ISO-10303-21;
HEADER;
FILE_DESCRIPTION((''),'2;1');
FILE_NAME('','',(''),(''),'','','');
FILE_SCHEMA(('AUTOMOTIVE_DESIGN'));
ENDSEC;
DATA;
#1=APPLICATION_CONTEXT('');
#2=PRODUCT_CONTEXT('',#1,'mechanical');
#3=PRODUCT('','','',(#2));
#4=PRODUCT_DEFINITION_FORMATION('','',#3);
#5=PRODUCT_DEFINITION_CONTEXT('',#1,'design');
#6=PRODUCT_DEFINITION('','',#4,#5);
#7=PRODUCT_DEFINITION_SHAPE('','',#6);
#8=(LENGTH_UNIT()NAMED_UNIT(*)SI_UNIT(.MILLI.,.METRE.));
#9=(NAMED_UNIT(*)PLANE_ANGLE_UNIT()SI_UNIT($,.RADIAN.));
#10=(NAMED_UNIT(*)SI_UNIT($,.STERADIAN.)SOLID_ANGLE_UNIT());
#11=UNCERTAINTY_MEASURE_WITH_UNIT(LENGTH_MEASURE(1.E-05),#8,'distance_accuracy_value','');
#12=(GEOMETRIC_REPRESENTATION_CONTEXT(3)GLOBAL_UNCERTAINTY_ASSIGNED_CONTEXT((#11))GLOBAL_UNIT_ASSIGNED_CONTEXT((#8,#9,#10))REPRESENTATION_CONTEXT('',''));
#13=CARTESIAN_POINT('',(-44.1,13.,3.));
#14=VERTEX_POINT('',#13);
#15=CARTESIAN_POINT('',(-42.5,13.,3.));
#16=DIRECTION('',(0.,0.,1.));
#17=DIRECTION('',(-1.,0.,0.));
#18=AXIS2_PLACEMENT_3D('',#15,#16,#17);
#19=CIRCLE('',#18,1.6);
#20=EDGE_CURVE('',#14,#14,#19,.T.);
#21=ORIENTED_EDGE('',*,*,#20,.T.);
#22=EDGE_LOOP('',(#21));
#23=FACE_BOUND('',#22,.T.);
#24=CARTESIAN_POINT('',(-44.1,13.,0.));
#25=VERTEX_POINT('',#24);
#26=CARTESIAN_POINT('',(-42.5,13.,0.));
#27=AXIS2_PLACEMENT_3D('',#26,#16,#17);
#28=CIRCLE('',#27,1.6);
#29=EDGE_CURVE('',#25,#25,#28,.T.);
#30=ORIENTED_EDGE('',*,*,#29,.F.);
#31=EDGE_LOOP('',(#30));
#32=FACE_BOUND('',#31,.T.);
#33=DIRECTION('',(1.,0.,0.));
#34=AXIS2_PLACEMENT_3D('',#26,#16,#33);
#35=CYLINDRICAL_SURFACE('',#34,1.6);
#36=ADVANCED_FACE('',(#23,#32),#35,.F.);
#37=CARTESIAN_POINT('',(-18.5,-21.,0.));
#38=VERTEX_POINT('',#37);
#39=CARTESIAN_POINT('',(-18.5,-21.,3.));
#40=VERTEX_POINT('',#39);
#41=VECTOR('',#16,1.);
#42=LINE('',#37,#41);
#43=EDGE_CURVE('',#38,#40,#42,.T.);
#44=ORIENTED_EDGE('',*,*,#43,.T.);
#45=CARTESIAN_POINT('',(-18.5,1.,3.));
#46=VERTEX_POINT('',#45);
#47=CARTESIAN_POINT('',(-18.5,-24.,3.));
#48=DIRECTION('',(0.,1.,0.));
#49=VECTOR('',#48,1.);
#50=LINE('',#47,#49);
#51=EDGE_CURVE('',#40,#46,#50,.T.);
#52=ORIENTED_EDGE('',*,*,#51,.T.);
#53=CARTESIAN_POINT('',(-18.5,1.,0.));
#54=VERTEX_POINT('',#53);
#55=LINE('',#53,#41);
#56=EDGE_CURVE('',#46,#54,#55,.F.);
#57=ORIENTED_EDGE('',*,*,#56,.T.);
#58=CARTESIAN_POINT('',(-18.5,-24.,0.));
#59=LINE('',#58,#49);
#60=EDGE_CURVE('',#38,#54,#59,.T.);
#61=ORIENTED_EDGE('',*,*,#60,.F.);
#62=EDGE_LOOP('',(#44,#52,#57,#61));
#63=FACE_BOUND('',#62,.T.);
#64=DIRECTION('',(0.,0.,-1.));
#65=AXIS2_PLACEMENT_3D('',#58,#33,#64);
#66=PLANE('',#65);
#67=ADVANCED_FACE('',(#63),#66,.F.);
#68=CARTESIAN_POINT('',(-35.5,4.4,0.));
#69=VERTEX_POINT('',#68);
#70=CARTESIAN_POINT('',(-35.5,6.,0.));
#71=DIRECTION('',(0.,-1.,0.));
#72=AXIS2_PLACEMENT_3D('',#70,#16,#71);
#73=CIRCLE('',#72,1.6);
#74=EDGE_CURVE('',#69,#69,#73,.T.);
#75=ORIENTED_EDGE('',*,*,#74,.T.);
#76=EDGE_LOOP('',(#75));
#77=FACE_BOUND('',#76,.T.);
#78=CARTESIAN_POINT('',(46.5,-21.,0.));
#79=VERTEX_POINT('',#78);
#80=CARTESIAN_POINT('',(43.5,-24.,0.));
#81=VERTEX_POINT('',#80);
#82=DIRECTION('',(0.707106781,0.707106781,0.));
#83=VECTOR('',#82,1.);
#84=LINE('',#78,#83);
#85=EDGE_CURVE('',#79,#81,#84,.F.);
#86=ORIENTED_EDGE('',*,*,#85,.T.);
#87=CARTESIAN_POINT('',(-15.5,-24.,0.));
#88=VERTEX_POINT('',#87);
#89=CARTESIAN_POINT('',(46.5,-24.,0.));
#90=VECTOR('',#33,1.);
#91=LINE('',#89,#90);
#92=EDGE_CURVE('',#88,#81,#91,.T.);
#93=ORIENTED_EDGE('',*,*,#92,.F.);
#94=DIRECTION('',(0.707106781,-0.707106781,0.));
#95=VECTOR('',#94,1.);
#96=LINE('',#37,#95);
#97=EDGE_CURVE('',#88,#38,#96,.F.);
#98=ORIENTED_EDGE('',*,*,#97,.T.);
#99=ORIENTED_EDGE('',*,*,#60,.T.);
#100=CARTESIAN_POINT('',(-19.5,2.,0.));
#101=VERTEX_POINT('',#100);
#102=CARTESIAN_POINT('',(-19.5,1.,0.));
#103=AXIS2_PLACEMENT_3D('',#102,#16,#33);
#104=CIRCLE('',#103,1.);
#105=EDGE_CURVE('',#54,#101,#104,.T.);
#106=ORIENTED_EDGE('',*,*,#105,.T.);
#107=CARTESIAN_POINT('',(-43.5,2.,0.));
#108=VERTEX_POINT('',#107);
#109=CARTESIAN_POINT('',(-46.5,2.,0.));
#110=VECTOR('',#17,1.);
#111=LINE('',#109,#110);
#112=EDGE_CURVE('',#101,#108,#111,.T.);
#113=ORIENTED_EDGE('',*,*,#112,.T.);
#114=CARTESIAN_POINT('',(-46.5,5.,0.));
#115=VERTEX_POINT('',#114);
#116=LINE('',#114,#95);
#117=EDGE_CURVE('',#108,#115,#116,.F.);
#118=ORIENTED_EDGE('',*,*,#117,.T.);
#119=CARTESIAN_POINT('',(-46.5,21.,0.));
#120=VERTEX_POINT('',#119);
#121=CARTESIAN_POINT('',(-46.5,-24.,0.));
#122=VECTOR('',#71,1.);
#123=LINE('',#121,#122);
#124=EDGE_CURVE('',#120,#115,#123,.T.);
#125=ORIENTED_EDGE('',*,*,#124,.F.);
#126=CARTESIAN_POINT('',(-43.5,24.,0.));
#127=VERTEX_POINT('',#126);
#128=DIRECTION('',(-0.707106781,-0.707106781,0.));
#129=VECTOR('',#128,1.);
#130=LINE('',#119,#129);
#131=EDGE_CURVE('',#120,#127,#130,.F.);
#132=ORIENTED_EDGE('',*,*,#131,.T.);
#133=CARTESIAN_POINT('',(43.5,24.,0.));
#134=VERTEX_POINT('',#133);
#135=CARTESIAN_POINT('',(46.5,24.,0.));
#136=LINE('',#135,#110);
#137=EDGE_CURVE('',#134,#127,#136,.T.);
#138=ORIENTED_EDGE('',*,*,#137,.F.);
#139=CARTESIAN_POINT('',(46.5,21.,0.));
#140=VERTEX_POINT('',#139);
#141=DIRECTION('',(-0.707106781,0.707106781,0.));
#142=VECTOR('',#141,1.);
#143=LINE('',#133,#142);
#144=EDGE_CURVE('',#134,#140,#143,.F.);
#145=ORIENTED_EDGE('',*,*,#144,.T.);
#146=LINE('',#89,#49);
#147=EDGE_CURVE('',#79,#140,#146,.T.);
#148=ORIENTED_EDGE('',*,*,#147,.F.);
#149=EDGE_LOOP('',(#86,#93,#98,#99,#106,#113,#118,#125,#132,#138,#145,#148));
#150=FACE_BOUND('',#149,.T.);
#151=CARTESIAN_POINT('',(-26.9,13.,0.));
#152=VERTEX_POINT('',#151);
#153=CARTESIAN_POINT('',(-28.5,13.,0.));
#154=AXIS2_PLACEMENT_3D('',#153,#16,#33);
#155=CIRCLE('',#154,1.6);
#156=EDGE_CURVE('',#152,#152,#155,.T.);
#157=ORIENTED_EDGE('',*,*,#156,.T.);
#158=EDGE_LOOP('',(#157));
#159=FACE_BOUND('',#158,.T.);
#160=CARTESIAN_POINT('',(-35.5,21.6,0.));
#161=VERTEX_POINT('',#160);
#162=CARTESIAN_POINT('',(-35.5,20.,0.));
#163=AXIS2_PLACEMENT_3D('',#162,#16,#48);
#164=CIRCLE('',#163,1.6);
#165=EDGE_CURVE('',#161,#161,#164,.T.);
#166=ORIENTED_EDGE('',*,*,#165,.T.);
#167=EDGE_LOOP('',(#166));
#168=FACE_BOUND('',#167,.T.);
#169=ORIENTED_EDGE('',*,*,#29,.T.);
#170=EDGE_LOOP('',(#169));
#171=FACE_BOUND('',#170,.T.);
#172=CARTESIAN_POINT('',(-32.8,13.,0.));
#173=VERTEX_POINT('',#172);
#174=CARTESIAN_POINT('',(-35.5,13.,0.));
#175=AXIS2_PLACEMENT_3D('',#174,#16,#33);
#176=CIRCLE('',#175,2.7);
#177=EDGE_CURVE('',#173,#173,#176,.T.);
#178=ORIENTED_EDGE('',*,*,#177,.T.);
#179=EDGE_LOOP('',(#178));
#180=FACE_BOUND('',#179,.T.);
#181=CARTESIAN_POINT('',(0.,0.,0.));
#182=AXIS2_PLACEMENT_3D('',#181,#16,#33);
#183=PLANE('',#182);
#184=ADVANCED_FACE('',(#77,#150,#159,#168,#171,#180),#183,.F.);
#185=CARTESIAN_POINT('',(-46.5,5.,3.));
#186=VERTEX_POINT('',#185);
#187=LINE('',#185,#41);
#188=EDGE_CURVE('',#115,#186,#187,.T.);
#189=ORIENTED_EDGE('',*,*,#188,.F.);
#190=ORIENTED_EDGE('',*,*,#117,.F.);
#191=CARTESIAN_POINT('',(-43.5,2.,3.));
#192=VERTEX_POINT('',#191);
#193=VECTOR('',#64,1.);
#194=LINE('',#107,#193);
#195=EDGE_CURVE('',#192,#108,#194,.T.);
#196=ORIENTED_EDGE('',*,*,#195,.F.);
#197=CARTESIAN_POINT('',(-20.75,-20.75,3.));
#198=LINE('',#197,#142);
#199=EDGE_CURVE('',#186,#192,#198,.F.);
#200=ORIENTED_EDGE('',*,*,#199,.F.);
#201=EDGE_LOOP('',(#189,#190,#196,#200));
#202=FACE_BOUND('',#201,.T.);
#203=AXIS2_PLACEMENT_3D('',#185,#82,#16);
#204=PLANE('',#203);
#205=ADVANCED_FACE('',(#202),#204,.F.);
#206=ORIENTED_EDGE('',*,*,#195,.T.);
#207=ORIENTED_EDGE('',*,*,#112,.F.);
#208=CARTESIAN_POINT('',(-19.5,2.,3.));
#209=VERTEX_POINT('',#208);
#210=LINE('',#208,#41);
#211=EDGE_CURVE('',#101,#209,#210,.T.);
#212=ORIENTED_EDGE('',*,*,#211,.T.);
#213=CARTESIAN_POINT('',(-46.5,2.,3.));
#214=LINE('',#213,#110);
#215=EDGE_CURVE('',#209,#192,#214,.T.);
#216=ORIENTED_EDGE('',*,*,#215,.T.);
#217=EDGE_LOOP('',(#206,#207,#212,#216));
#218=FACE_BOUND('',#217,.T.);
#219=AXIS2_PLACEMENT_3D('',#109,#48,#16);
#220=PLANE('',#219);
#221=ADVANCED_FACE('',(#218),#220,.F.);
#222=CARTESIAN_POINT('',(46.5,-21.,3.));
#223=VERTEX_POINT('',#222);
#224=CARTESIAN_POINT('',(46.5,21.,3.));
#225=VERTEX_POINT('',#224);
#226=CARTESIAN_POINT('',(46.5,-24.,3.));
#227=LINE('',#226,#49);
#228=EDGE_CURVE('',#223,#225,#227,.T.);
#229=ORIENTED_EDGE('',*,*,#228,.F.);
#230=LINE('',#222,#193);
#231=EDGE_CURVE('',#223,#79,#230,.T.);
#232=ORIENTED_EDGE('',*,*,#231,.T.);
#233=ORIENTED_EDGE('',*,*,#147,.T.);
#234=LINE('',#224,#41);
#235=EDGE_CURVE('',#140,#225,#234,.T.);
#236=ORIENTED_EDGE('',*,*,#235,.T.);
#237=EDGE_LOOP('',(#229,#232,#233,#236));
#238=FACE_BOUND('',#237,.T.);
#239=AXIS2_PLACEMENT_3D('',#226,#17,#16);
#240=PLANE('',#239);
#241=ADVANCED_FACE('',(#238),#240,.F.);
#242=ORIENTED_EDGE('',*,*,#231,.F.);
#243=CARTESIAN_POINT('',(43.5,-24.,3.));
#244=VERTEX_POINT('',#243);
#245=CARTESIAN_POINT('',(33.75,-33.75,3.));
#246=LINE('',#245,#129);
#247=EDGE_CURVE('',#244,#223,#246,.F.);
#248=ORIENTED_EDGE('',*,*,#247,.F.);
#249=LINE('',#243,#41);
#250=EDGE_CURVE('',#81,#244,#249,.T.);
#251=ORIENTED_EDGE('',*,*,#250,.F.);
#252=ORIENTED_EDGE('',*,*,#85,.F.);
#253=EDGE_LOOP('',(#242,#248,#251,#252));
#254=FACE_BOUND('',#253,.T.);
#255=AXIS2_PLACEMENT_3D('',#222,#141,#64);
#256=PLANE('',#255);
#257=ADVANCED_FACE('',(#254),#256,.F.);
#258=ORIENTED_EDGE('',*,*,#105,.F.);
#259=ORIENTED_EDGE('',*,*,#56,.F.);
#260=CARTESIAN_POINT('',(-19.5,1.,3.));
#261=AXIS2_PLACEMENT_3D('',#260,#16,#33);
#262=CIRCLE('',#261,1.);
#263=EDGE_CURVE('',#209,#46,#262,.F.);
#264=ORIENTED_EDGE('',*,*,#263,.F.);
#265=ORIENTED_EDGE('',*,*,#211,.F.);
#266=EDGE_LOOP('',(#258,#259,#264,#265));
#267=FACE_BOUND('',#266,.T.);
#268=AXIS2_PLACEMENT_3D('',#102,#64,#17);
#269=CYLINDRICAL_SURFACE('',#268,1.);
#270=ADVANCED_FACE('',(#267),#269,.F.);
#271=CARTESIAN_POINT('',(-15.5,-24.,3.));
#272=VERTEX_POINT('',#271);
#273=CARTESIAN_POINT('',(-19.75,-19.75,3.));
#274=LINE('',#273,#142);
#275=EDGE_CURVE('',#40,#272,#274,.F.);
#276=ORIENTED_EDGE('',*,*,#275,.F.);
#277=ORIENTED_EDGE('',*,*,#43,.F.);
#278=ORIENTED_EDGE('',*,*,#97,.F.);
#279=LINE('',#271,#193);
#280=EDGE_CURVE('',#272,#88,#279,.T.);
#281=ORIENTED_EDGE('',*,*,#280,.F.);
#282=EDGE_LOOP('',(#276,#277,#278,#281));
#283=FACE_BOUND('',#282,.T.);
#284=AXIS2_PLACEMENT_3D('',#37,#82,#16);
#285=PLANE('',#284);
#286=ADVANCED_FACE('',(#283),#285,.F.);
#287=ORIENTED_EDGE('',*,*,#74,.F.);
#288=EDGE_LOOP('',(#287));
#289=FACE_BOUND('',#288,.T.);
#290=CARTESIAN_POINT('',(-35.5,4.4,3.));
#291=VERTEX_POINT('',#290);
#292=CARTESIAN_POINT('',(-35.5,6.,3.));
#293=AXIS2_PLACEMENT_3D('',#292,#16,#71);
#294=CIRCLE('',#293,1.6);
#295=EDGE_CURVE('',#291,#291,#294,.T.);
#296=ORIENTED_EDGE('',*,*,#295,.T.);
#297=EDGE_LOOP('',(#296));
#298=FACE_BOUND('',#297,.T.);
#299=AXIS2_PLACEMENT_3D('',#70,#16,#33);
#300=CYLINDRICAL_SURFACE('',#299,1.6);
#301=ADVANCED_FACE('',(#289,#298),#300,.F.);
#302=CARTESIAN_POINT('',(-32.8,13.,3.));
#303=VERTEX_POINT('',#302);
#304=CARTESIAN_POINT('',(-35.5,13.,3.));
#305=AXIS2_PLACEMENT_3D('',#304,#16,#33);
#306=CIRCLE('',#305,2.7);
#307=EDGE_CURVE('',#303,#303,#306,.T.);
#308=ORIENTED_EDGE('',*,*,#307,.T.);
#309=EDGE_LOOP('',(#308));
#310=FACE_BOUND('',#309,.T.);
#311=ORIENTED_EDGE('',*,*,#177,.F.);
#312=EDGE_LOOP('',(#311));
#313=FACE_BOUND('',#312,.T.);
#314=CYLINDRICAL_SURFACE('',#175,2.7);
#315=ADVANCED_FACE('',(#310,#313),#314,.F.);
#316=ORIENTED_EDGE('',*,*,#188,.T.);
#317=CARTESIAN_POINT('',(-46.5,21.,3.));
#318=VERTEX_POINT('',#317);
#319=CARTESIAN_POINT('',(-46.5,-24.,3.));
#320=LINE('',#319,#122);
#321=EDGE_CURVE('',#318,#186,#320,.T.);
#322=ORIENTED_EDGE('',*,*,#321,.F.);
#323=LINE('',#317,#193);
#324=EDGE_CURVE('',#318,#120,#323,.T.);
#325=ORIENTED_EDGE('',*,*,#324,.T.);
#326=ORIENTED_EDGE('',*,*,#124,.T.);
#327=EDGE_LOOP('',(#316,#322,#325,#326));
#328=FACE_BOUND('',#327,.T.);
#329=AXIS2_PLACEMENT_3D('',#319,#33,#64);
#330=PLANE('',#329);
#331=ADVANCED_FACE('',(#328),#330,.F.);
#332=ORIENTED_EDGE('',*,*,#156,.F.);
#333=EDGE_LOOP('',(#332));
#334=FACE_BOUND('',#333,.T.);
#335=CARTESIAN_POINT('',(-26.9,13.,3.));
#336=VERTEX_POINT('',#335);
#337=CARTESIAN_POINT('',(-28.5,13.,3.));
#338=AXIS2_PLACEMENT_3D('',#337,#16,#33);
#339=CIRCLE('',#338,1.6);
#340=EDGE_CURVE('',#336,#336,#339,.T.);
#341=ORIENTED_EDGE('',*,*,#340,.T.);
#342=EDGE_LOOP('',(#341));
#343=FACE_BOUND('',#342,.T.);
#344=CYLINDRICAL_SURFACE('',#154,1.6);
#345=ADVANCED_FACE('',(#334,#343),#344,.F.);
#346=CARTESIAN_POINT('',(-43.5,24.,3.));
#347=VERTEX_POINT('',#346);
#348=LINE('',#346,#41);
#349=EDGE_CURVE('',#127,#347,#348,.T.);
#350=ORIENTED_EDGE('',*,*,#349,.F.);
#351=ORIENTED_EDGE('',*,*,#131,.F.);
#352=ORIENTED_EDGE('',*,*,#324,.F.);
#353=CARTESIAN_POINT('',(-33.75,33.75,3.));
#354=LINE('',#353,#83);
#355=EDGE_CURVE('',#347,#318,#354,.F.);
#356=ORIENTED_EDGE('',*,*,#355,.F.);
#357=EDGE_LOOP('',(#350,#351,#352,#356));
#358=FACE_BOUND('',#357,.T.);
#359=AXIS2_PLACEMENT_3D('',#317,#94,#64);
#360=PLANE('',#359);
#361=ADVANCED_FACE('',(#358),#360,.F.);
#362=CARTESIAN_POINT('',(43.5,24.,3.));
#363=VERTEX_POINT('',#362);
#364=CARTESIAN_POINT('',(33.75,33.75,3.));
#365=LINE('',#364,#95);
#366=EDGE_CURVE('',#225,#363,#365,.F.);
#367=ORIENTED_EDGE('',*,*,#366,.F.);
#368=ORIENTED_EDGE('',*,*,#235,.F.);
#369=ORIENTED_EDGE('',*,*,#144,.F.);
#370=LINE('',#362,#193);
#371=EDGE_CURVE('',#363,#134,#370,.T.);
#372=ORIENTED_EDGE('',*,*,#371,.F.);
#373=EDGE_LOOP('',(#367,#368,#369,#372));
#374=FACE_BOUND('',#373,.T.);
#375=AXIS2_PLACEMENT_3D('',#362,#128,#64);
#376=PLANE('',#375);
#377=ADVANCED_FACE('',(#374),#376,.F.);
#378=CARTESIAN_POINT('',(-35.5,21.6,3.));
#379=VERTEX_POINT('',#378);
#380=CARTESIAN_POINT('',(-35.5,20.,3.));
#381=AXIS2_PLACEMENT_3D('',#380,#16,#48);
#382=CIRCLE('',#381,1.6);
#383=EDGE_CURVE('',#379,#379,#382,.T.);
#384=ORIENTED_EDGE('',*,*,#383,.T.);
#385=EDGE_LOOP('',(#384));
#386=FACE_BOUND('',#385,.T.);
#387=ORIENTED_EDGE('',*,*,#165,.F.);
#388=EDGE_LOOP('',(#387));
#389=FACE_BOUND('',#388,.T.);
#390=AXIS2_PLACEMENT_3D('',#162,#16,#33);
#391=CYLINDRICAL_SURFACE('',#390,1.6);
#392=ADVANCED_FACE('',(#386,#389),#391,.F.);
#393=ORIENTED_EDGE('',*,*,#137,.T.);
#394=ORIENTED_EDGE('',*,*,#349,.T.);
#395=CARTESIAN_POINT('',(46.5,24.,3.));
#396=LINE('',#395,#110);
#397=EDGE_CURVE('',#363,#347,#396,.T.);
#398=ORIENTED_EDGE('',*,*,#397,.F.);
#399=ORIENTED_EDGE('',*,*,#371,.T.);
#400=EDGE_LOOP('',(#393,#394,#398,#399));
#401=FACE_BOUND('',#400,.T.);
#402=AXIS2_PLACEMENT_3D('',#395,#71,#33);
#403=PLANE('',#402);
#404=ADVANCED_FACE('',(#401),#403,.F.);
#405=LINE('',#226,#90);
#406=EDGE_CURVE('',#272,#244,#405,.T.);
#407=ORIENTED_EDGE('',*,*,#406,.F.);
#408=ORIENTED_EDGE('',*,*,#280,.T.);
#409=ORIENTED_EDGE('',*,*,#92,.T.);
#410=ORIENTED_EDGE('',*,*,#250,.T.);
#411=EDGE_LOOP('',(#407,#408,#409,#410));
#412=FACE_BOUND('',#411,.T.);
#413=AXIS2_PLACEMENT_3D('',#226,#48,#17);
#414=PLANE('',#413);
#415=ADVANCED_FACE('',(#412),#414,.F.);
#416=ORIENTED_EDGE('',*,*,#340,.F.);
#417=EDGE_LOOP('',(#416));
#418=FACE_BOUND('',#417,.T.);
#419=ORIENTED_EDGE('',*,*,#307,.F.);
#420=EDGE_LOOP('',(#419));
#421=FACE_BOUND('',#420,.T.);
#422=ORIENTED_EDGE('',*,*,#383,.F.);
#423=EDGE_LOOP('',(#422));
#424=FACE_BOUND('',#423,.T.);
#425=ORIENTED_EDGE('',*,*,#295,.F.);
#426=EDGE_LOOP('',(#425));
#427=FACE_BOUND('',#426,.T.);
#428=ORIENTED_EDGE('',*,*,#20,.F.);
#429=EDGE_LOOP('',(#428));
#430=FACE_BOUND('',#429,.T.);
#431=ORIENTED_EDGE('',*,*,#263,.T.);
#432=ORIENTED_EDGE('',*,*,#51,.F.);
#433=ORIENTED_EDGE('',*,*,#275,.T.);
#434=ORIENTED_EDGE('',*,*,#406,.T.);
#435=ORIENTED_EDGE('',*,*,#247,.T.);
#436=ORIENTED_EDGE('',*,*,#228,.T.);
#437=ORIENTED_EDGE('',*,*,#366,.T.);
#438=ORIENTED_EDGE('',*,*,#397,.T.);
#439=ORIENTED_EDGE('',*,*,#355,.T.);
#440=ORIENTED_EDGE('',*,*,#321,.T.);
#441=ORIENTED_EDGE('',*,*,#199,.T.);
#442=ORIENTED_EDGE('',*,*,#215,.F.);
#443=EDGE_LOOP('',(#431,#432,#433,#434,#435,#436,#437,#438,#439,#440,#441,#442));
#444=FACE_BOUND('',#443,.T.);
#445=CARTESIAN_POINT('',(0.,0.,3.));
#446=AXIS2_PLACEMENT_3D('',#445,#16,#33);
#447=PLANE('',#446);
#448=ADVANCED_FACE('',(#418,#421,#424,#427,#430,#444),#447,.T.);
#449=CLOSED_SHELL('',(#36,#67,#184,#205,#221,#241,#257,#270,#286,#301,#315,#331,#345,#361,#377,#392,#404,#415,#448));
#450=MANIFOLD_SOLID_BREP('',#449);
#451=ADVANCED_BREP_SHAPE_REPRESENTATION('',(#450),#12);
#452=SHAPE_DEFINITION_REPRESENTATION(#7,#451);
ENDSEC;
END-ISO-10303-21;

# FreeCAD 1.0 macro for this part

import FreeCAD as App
import Part
import Sketcher
Q = App.Units.Quantity


def edges_at(feature, points):
    """Names of the edges that pass closest to the given points."""
    edges = feature.Shape.Edges
    near = lambda p: min(range(len(edges)), key=lambda i: edges[i].distToShape(Part.Vertex(*p))[0])
    return sorted({f"Edge{near(p) + 1}" for p in points})


def add_polygon(sketch, points):
    """Adds a closed chain of lines whose ends are joined by coincident constraints."""
    first, n = sketch.GeometryCount, len(points)
    for a, b in zip(points, points[1:] + points[:1]):
        sketch.addGeometry(Part.LineSegment(App.Vector(*a, 0), App.Vector(*b, 0)), False)
    for i in range(n):
        sketch.addConstraint(Sketcher.Constraint("Coincident", first + i, 2, first + (i + 1) % n, 1))

doc = App.newDocument("Part")
params = doc.addObject("Spreadsheet::Sheet", "Params")
for row, (alias, value) in enumerate([
    ("sketch1_width", "93 mm"),
    ("sketch1_height", "48 mm"),
    ("pad1_length", "3 mm"),
    ("sketch2_diameter", "5.4 mm"),
    ("sketch2_diameter2", "3.2 mm"),
    ("sketch3_width", "28 mm"),
    ("sketch3_height", "26 mm"),
    ("fillet_radius", "1 mm"),
    ("chamfer_size", "3 mm"),
], start=1):
    params.set(f"A{row}", alias)
    params.set(f"B{row}", "=" + value)
    params.setAlias(f"B{row}", alias)

body = doc.addObject("PartDesign::Body", "Body")

# Sketch on XY plane
sketch1 = doc.addObject("Sketcher::SketchObject", "Sketch")
body.addObject(sketch1)
sketch1.AttachmentSupport = (doc.XY_Plane, [""])
sketch1.MapMode = "FlatFace"
add_polygon(sketch1, [(-46, 24), (-46, -24), (46, -24), (46, 24)])  # lines 0-3
sketch1.addConstraint(Sketcher.Constraint("Vertical", 0))
sketch1.addConstraint(Sketcher.Constraint("Horizontal", 1))
sketch1.addConstraint(Sketcher.Constraint("Vertical", 2))
sketch1.addConstraint(Sketcher.Constraint("Horizontal", 3))
sketch1.addConstraint(Sketcher.Constraint("Symmetric", 0, 2, 2, 2, -1, 1))
sketch1.addConstraint(Sketcher.Constraint("DistanceX", 1, 1, 1, 2, Q("93 mm")))
sketch1.addConstraint(Sketcher.Constraint("DistanceY", 0, 2, 0, 1, Q("48 mm")))
sketch1.setExpression("Constraints[9]", "Params.sketch1_width")
sketch1.setExpression("Constraints[10]", "Params.sketch1_height")
pad1 = doc.addObject("PartDesign::Pad", "Pad")
body.addObject(pad1)
pad1.Profile = sketch1
pad1.setExpression("Length", "Params.pad1_length")

# Sketch on XY plane
sketch2 = doc.addObject("Sketcher::SketchObject", "Sketch001")
body.addObject(sketch2)
sketch2.AttachmentSupport = (doc.XY_Plane, [""])
sketch2.MapMode = "FlatFace"
sketch2.AttachmentOffset = App.Placement(App.Vector(0, 0, 3), App.Rotation())
sketch2.addGeometry(Part.Circle(App.Vector(-35.5, 13, 0), App.Vector(0, 0, 1), 2.7), False)
sketch2.addGeometry(Part.Circle(App.Vector(-28.5, 13, 0), App.Vector(0, 0, 1), 1.6), False)
sketch2.addConstraint(Sketcher.Constraint("Horizontal", 0, 3, 1, 3))
sketch2.addConstraint(Sketcher.Constraint("Diameter", 0, Q("5.4 mm")))
sketch2.addConstraint(Sketcher.Constraint("Diameter", 1, Q("3.2 mm")))
sketch2.addConstraint(Sketcher.Constraint("DistanceY", -1, 1, 0, 3, Q("13 mm")))
sketch2.addConstraint(Sketcher.Constraint("DistanceX", 0, 3, 1, 3, Q("7 mm")))
sketch2.addConstraint(Sketcher.Constraint("DistanceX", 0, 3, -1, 1, Q("35.5 mm")))
sketch2.setExpression("Constraints[1]", "Params.sketch2_diameter")
sketch2.setExpression("Constraints[2]", "Params.sketch2_diameter2")
pocket1 = doc.addObject("PartDesign::Pocket", "Pocket")
body.addObject(pocket1)
pocket1.Profile = sketch2
pocket1.Type = "ThroughAll"
doc.recompute()

datumline = doc.addObject("PartDesign::Line", "DatumLine")
body.addObject(datumline)
datumline.Placement = App.Placement(App.Vector(-35.5, 13, 0), App.Rotation(App.Vector(0, 0, 1), App.Vector(0, 0, 1)))
polarpattern = doc.addObject("PartDesign::PolarPattern", "PolarPattern")
body.addObject(polarpattern)
polarpattern.Originals = [pocket1]
polarpattern.Axis = (datumline, [""])
polarpattern.Angle = 360
polarpattern.Occurrences = 4
body.Tip = polarpattern

# Sketch on XY plane
sketch3 = doc.addObject("Sketcher::SketchObject", "Sketch002")
body.addObject(sketch3)
sketch3.AttachmentSupport = (doc.XY_Plane, [""])
sketch3.MapMode = "FlatFace"
sketch3.AttachmentOffset = App.Placement(App.Vector(0, 0, 3), App.Rotation())
add_polygon(sketch3, [(-46, 2), (-46, -24), (-18, -24), (-18, 2)])  # lines 0-3
sketch3.addConstraint(Sketcher.Constraint("Vertical", 0))
sketch3.addConstraint(Sketcher.Constraint("Horizontal", 1))
sketch3.addConstraint(Sketcher.Constraint("Vertical", 2))
sketch3.addConstraint(Sketcher.Constraint("Horizontal", 3))
sketch3.addConstraint(Sketcher.Constraint("DistanceX", 1, 1, 1, 2, Q("28 mm")))
sketch3.addConstraint(Sketcher.Constraint("DistanceY", 0, 2, 0, 1, Q("26 mm")))
sketch3.addConstraint(Sketcher.Constraint("DistanceY", 0, 2, -1, 1, Q("24 mm")))
sketch3.addConstraint(Sketcher.Constraint("DistanceX", 0, 2, -1, 1, Q("46.5 mm")))
sketch3.setExpression("Constraints[8]", "Params.sketch3_width")
sketch3.setExpression("Constraints[9]", "Params.sketch3_height")
pocket2 = doc.addObject("PartDesign::Pocket", "Pocket001")
body.addObject(pocket2)
pocket2.Profile = sketch3
pocket2.Type = "ThroughAll"
doc.recompute()

fillet = doc.addObject("PartDesign::Fillet", "Fillet")
body.addObject(fillet)
fillet.Base = (pocket2, edges_at(pocket2, [(-18.5, 2, 1.5)]))
fillet.setExpression("Radius", "Params.fillet_radius")
doc.recompute()

chamfer = doc.addObject("PartDesign::Chamfer", "Chamfer")
body.addObject(chamfer)
chamfer.Base = (fillet, edges_at(fillet, [
    (-46.5, 2, 1.5),
    (-18.5, -24, 1.5),
    (-46.5, 24, 1.5),
    (46.5, 24, 1.5),
    (46.5, -24, 1.5),
]))
chamfer.setExpression("Size", "Params.chamfer_size")

doc.recompute()
